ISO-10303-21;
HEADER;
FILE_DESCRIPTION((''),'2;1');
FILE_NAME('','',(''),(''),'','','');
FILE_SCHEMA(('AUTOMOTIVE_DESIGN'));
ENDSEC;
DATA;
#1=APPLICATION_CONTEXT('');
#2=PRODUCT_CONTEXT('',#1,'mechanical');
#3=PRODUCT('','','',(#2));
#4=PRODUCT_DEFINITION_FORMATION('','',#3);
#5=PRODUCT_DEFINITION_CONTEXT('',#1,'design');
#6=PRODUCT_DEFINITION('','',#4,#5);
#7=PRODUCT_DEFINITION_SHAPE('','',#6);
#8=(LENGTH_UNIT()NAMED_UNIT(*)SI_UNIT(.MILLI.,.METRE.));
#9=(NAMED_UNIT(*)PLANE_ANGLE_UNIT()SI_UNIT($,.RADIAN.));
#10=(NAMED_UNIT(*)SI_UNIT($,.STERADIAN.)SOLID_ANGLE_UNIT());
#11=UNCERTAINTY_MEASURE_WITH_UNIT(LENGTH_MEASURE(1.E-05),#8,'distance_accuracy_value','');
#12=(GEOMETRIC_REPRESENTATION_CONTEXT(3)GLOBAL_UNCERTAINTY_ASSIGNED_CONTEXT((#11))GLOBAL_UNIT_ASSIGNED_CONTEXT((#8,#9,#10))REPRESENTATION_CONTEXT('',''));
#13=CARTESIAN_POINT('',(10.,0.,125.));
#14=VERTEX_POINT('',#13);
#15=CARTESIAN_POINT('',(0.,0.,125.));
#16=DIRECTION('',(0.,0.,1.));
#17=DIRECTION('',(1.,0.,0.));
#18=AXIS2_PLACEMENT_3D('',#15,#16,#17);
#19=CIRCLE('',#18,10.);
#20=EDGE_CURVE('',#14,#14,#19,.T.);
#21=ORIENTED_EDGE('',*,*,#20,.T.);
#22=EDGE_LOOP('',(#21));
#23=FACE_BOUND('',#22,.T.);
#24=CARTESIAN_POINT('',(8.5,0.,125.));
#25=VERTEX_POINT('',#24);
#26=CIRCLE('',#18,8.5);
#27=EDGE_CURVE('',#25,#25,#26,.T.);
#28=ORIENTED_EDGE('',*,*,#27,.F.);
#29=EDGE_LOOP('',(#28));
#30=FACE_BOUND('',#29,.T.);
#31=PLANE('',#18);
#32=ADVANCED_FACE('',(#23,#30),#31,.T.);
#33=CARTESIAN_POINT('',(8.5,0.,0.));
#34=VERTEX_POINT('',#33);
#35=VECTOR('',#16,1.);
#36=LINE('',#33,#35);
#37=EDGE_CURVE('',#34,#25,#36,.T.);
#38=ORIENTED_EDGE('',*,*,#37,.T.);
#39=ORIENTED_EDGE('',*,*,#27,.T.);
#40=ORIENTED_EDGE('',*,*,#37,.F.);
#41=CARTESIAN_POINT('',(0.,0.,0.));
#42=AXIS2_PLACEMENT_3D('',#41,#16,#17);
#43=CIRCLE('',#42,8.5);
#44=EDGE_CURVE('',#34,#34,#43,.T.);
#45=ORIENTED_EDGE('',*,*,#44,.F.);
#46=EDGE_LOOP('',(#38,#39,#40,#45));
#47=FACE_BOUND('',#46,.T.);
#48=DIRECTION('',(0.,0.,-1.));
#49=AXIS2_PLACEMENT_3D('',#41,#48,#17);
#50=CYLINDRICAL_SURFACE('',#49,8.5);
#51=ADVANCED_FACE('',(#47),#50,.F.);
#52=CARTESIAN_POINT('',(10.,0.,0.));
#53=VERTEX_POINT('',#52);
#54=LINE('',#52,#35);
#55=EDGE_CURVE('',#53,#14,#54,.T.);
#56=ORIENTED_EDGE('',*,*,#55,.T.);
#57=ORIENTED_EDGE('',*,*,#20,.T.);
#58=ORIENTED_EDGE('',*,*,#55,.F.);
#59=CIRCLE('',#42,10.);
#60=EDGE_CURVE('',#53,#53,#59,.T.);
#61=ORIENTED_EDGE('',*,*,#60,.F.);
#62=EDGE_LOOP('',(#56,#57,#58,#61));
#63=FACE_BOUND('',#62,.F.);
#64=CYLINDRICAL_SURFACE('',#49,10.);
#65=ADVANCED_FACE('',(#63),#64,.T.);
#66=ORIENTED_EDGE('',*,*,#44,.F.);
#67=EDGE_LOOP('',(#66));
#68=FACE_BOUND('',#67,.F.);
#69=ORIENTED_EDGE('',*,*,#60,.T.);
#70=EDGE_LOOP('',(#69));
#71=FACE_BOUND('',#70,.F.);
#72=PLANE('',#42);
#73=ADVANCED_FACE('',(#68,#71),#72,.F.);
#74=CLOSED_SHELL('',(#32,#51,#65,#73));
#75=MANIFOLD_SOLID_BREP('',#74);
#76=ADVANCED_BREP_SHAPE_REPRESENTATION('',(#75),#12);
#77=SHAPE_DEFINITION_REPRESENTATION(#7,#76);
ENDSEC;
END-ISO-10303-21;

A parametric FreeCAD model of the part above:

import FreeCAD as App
import Part
import Sketcher

V = App.Vector

doc = App.newDocument("Part")
params = doc.addObject("Spreadsheet::Sheet", "Params")
for row, (alias, value) in enumerate([
    ("sketch1_diameter", "20 mm"),
    ("sketch1_diameter2", "17 mm"),
    ("pad1_length", "125 mm"),
], start=1):
    params.set(f"A{row}", alias)
    params.set(f"B{row}", "=" + value)
    params.setAlias(f"B{row}", alias)

body = doc.addObject("PartDesign::Body", "Body")

sketch1 = body.newObject("Sketcher::SketchObject", "Sketch")
sketch1.AttachmentSupport = (doc.getObject("XY_Plane"), [""])
sketch1.MapMode = "FlatFace"
sketch1.addGeometry([
    Part.Circle(V(0, 0, 0), V(0, 0, 1), 10),
    Part.Circle(V(0, 0, 0), V(0, 0, 1), 8.5),
], False)
sketch1.addConstraint([
    Sketcher.Constraint("Coincident", 0, 3, -1, 1),
    Sketcher.Constraint("Coincident", 1, 3, -1, 1),
    Sketcher.Constraint("Diameter", 0, 20.0),
    Sketcher.Constraint("Diameter", 1, 17.0),
])
sketch1.setExpression("Constraints[2]", "Params.sketch1_diameter")
sketch1.setExpression("Constraints[3]", "Params.sketch1_diameter2")
pad1 = body.newObject("PartDesign::Pad", "Pad")
pad1.Profile = sketch1
pad1.setExpression("Length", "Params.pad1_length")

doc.recompute()
